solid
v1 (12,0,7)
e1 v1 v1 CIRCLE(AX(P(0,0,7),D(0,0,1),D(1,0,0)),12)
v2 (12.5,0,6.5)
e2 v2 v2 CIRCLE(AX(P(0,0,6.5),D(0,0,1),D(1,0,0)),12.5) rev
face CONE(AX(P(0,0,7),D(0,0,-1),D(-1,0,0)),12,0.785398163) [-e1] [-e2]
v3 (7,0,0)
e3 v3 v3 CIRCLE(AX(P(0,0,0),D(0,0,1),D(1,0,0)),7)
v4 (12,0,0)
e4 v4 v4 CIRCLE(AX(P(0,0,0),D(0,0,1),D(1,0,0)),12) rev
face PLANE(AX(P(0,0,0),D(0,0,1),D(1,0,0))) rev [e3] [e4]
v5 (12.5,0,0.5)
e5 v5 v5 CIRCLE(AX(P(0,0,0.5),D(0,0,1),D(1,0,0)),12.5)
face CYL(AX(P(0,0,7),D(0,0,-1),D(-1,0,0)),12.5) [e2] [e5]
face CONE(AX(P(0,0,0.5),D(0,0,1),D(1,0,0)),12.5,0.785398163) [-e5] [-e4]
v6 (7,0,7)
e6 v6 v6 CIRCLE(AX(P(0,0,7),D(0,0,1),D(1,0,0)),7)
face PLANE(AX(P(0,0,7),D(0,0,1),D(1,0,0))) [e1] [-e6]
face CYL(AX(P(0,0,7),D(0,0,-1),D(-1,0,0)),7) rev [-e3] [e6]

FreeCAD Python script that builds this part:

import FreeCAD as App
import Part
import Sketcher

V = App.Vector


def edges_at(feature, points):
    """Names of the edges that pass closest to the given points."""
    edges = feature.Shape.Edges
    near = lambda p: min(range(len(edges)), key=lambda i: edges[i].distToShape(Part.Vertex(*p))[0])
    return sorted({f"Edge{near(p) + 1}" for p in points})

doc = App.newDocument("Part")
body = doc.addObject("PartDesign::Body", "Body")

# Sketch on XY plane
sketch1 = body.newObject("Sketcher::SketchObject", "Sketch")
sketch1.AttachmentSupport = (doc.getObject("XY_Plane"), [""])
sketch1.MapMode = "FlatFace"
sketch1.addGeometry([
    Part.Circle(V(0, 0, 0), V(0, 0, 1), 12),
    Part.Circle(V(0, 0, 0), V(0, 0, 1), 7),
], False)
sketch1.addConstraint([
    Sketcher.Constraint("Coincident", 0, 3, -1, 1),
    Sketcher.Constraint("Coincident", 1, 3, -1, 1),
    Sketcher.Constraint("Diameter", 0, 25.0),
    Sketcher.Constraint("Diameter", 1, 14.0),
])
pad1 = body.newObject("PartDesign::Pad", "Pad")
pad1.Profile = sketch1
pad1.Length = 7
doc.recompute()

chamfer = body.newObject("PartDesign::Chamfer", "Chamfer")
chamfer.Base = (pad1, edges_at(pad1, [(-12.5, 0, 0), (-12.5, 0, 7)]))
chamfer.Size = 0.5

doc.recompute()
